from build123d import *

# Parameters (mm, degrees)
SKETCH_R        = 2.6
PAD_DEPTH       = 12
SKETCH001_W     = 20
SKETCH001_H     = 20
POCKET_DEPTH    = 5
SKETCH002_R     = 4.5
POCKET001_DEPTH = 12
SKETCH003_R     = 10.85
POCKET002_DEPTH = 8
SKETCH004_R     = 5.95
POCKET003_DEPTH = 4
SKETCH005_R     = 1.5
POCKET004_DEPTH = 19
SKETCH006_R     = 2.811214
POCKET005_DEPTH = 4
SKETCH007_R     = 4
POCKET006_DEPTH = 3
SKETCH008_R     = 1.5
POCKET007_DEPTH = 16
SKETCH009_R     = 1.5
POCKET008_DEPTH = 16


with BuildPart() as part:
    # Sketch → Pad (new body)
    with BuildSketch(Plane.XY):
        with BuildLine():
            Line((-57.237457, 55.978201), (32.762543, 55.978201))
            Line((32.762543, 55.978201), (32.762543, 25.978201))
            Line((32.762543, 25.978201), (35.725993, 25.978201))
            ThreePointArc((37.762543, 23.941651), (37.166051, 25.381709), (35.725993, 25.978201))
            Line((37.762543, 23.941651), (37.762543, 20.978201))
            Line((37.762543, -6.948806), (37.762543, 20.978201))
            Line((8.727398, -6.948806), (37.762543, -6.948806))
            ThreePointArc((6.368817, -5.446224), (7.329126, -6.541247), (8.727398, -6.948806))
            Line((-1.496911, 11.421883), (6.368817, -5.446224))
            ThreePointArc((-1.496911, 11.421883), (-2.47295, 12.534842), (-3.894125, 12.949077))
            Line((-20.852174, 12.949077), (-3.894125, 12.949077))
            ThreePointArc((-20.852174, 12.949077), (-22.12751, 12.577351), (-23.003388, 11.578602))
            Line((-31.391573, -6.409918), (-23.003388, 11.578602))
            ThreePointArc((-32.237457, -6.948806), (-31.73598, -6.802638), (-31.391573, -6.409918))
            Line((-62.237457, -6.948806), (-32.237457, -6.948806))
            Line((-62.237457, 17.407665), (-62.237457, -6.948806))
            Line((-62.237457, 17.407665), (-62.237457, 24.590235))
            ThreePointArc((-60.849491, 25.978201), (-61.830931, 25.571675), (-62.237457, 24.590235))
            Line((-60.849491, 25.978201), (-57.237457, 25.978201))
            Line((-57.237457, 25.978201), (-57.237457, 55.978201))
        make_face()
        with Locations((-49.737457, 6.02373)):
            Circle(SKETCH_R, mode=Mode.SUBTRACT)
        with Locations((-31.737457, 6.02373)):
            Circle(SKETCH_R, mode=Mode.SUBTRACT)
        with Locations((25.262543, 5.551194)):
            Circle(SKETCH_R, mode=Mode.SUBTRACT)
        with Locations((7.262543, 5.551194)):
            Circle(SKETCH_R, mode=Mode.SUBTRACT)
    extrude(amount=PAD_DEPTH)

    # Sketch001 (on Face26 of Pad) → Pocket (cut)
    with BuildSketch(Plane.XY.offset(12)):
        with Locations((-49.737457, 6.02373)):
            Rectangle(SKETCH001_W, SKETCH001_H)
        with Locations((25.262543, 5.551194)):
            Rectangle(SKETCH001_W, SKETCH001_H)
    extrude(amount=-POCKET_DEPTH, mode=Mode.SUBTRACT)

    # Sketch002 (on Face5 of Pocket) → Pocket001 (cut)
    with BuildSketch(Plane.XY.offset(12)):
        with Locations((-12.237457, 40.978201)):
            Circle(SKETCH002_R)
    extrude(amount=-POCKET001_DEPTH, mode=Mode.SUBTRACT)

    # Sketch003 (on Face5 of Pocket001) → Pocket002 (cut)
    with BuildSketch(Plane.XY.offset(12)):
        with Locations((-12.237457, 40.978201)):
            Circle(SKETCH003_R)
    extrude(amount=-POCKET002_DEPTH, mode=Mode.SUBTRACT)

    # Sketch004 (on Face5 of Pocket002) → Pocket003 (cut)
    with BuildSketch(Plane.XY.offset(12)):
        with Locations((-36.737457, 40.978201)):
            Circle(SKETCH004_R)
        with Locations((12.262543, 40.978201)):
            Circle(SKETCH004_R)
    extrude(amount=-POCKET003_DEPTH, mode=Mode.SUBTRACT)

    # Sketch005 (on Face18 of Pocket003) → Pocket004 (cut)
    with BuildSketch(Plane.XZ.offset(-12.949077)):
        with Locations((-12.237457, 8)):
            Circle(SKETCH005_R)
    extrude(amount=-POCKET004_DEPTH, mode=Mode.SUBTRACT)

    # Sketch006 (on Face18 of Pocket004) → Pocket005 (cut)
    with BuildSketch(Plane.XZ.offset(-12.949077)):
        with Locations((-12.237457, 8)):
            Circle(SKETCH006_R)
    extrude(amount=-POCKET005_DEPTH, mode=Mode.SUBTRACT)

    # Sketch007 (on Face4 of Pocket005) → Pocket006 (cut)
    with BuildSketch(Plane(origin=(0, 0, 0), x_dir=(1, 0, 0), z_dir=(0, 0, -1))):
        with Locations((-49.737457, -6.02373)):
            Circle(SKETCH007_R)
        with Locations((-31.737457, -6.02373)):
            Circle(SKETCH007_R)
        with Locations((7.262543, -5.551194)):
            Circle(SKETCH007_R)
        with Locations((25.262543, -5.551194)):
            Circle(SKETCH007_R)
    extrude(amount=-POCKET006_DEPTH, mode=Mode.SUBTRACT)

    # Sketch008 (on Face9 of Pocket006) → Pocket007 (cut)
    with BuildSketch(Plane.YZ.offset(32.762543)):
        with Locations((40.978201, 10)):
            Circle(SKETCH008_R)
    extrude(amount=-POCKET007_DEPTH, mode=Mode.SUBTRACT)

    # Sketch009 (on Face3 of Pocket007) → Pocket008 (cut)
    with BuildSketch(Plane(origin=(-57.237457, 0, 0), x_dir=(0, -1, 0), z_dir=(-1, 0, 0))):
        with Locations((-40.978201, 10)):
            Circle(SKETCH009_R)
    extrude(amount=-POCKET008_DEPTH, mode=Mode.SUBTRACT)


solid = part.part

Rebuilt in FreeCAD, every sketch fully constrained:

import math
import FreeCAD as App
import Part
import Sketcher

V = App.Vector
Q = App.Units.Quantity

doc = App.newDocument("Part")
body = doc.addObject("PartDesign::Body", "Body")

sketch1 = doc.addObject("Sketcher::SketchObject", "Sketch")
body.addObject(sketch1)
sketch1.AttachmentSupport = (doc.XY_Plane, [""])
sketch1.MapMode = "FlatFace"
sketch1.addGeometry(Part.LineSegment(V(32.8, 56, 0), V(-57.2, 56, 0)), False)
sketch1.addGeometry(Part.LineSegment(V(-57.2, 56, 0), V(-57.2, 26, 0)), False)
sketch1.addGeometry(Part.LineSegment(V(-57.2, 26, 0), V(-60.8, 26, 0)), False)
sketch1.addGeometry(Part.ArcOfCircle(Part.Circle(V(-60.8, 24.6, 0), V(0, 0, 1), 1.4), math.radians(90), math.radians(180)), False)
sketch1.addGeometry(Part.LineSegment(V(-62.2, 24.6, 0), V(-62.2, -6.9, 0)), False)
sketch1.addGeometry(Part.LineSegment(V(-62.2, -6.9, 0), V(-32.2, -6.9, 0)), False)
sketch1.addGeometry(Part.ArcOfCircle(Part.Circle(V(-32.2, -6, 0), V(0, 0, 1), 0.9), math.radians(-90), math.radians(-25)), False)
sketch1.addGeometry(Part.LineSegment(V(-31.4, -6.4, 0), V(-23, 11.6, 0)), False)
sketch1.addGeometry(Part.ArcOfCircle(Part.Circle(V(-20.9, 10.6, 0), V(0, 0, 1), 2.4), math.radians(90), math.radians(155)), False)
sketch1.addGeometry(Part.LineSegment(V(-20.9, 12.9, 0), V(-3.9, 12.9, 0)), False)
sketch1.addGeometry(Part.ArcOfCircle(Part.Circle(V(-3.9, 10.3, 0), V(0, 0, 1), 2.6), math.radians(25), math.radians(90)), False)
sketch1.addGeometry(Part.LineSegment(V(-1.5, 11.4, 0), V(6.4, -5.4, 0)), False)
sketch1.addGeometry(Part.ArcOfCircle(Part.Circle(V(8.7, -4.3, 0), V(0, 0, 1), 2.6), math.radians(-155), math.radians(-90)), False)
sketch1.addGeometry(Part.LineSegment(V(8.7, -6.9, 0), V(37.8, -6.9, 0)), False)
sketch1.addGeometry(Part.LineSegment(V(37.8, -6.9, 0), V(37.8, 23.9, 0)), False)
sketch1.addGeometry(Part.ArcOfCircle(Part.Circle(V(35.7, 23.9, 0), V(0, 0, 1), 2), math.radians(0), math.radians(90)), False)
sketch1.addGeometry(Part.LineSegment(V(35.7, 26, 0), V(32.8, 26, 0)), False)
sketch1.addGeometry(Part.LineSegment(V(32.8, 26, 0), V(32.8, 56, 0)), False)
sketch1.addGeometry(Part.Circle(V(25.3, 5.6, 0), V(0, 0, 1), 2.6), False)
sketch1.addGeometry(Part.Circle(V(7.3, 5.6, 0), V(0, 0, 1), 2.6), False)
sketch1.addGeometry(Part.Circle(V(-31.7, 6, 0), V(0, 0, 1), 2.6), False)
sketch1.addGeometry(Part.Circle(V(-49.7, 6, 0), V(0, 0, 1), 2.6), False)
sketch1.addConstraint(Sketcher.Constraint("Coincident", 0, 2, 1, 1))
sketch1.addConstraint(Sketcher.Constraint("Coincident", 1, 2, 2, 1))
sketch1.addConstraint(Sketcher.Constraint("Tangent", 2, 2, 3, 1))
sketch1.addConstraint(Sketcher.Constraint("Tangent", 3, 2, 4, 1))
sketch1.addConstraint(Sketcher.Constraint("Coincident", 4, 2, 5, 1))
sketch1.addConstraint(Sketcher.Constraint("Coincident", 5, 2, 6, 1))
sketch1.addConstraint(Sketcher.Constraint("Coincident", 6, 2, 7, 1))
sketch1.addConstraint(Sketcher.Constraint("Tangent", 7, 2, 8, 2))
sketch1.addConstraint(Sketcher.Constraint("Tangent", 8, 1, 9, 1))
sketch1.addConstraint(Sketcher.Constraint("Tangent", 9, 2, 10, 2))
sketch1.addConstraint(Sketcher.Constraint("Tangent", 10, 1, 11, 1))
sketch1.addConstraint(Sketcher.Constraint("Tangent", 11, 2, 12, 1))
sketch1.addConstraint(Sketcher.Constraint("Tangent", 12, 2, 13, 1))
sketch1.addConstraint(Sketcher.Constraint("Coincident", 13, 2, 14, 1))
sketch1.addConstraint(Sketcher.Constraint("Tangent", 14, 2, 15, 1))
sketch1.addConstraint(Sketcher.Constraint("Tangent", 15, 2, 16, 1))
sketch1.addConstraint(Sketcher.Constraint("Coincident", 16, 2, 17, 1))
sketch1.addConstraint(Sketcher.Constraint("Coincident", 17, 2, 0, 1))
sketch1.addConstraint(Sketcher.Constraint("Horizontal", 0))
sketch1.addConstraint(Sketcher.Constraint("Vertical", 1))
sketch1.addConstraint(Sketcher.Constraint("Horizontal", 2))
sketch1.addConstraint(Sketcher.Constraint("Vertical", 4))
sketch1.addConstraint(Sketcher.Constraint("Horizontal", 5))
sketch1.addConstraint(Sketcher.Constraint("Horizontal", 9))
sketch1.addConstraint(Sketcher.Constraint("Horizontal", 13))
sketch1.addConstraint(Sketcher.Constraint("Vertical", 14))
sketch1.addConstraint(Sketcher.Constraint("Horizontal", 16))
sketch1.addConstraint(Sketcher.Constraint("Vertical", 17))
sketch1.addConstraint(Sketcher.Constraint("Equal", 18, 19))
sketch1.addConstraint(Sketcher.Constraint("Equal", 19, 20))
sketch1.addConstraint(Sketcher.Constraint("Equal", 20, 21))
sketch1.addConstraint(Sketcher.Constraint("Horizontal", 18, 3, 19, 3))
sketch1.addConstraint(Sketcher.Constraint("Horizontal", 20, 3, 21, 3))
sketch1.addConstraint(Sketcher.Constraint("Horizontal", 5, 2, 12, 2))
sketch1.addConstraint(Sketcher.Constraint("Horizontal", 2, 2, 15, 2))
sketch1.addConstraint(Sketcher.Constraint("Equal", 5, 1))
sketch1.addConstraint(Sketcher.Constraint("Diameter", 18, Q("5.2 mm")))
sketch1.addConstraint(Sketcher.Constraint("DistanceX", 0, 2, 0, 1, Q("90 mm")))
sketch1.addConstraint(Sketcher.Constraint("DistanceX", 5, 1, 5, 2, Q("30 mm")))
sketch1.addConstraint(Sketcher.Constraint("Angle", 7, Q("64.999999 deg")))
sketch1.addConstraint(Sketcher.Constraint("Angle", 11, Q("-64.999999 deg")))
sketch1.addConstraint(Sketcher.Constraint("DistanceX", 19, 3, 18, 3, Q("18 mm")))
sketch1.addConstraint(Sketcher.Constraint("DistanceX", 20, 3, 19, 3, Q("39 mm")))
sketch1.addConstraint(Sketcher.Constraint("DistanceX", 21, 3, 20, 3, Q("18 mm")))
sketch1.addConstraint(Sketcher.Constraint("DistanceX", 3, 2, 1, 2, Q("5 mm")))
sketch1.addConstraint(Sketcher.Constraint("DistanceX", 16, 2, 14, 2, Q("5 mm")))
sketch1.addConstraint(Sketcher.Constraint("DistanceX", 0, 2, 21, 3, Q("7.5 mm")))
sketch1.addConstraint(Sketcher.Constraint("DistanceY", 12, 2, 19, 3, Q("12.5 mm")))
sketch1.addConstraint(Sketcher.Constraint("Radius", 15, Q("2.036551 mm")))
sketch1.addConstraint(Sketcher.Constraint("Radius", 3, Q("1.387967 mm")))
sketch1.addConstraint(Sketcher.Constraint("Radius", 6, Q("0.933334 mm")))
sketch1.addConstraint(Sketcher.Constraint("Radius", 8, Q("2.373598 mm")))
sketch1.addConstraint(Sketcher.Constraint("Radius", 10, Q("2.645034 mm")))
sketch1.addConstraint(Sketcher.Constraint("Radius", 12, Q("2.602405 mm")))
sketch1.addConstraint(Sketcher.Constraint("DistanceX", 9, 1, 9, 2, Q("16.958049 mm")))
sketch1.addConstraint(Sketcher.Constraint("DistanceY", 4, 2, 4, 1, Q("31.539041 mm")))
sketch1.addConstraint(Sketcher.Constraint("DistanceY", 12, 3, -1, 1, Q("4.346401 mm")))
sketch1.addConstraint(Sketcher.Constraint("DistanceX", -1, 1, 12, 2, Q("8.727398 mm")))
sketch1.addConstraint(Sketcher.Constraint("DistanceX", 6, 2, 8, 1, Q("10.539399 mm")))
sketch1.addConstraint(Sketcher.Constraint("DistanceY", 11, 2, 9, 2, Q("18.395301 mm")))
sketch1.addConstraint(Sketcher.Constraint("DistanceX", 13, 1, 13, 2, Q("29.035145 mm")))
sketch1.addConstraint(Sketcher.Constraint("DistanceY", -1, 1, 20, 3, Q("6.02373 mm")))
pad1 = doc.addObject("PartDesign::Pad", "Pad")
body.addObject(pad1)
pad1.Profile = sketch1
pad1.Length = 12

sketch2 = doc.addObject("Sketcher::SketchObject", "Sketch001")
body.addObject(sketch2)
sketch2.AttachmentSupport = (doc.XY_Plane, [""])
sketch2.MapMode = "FlatFace"
sketch2.AttachmentOffset = App.Placement(V(0, 0, 12), App.Rotation())
sketch2.addGeometry(Part.LineSegment(V(-60, 16, 0), V(-60, -4, 0)), False)
sketch2.addGeometry(Part.LineSegment(V(-60, -4, 0), V(-40, -4, 0)), False)
sketch2.addGeometry(Part.LineSegment(V(-40, -4, 0), V(-40, 16, 0)), False)
sketch2.addGeometry(Part.LineSegment(V(-40, 16, 0), V(-60, 16, 0)), False)
sketch2.addGeometry(Part.LineSegment(V(15, 16, 0), V(15, -4, 0)), False)
sketch2.addGeometry(Part.LineSegment(V(15, -4, 0), V(35, -4, 0)), False)
sketch2.addGeometry(Part.LineSegment(V(35, -4, 0), V(35, 16, 0)), False)
sketch2.addGeometry(Part.LineSegment(V(35, 16, 0), V(15, 16, 0)), False)
sketch2.addConstraint(Sketcher.Constraint("Coincident", 0, 2, 1, 1))
sketch2.addConstraint(Sketcher.Constraint("Coincident", 1, 2, 2, 1))
sketch2.addConstraint(Sketcher.Constraint("Coincident", 2, 2, 3, 1))
sketch2.addConstraint(Sketcher.Constraint("Coincident", 3, 2, 0, 1))
sketch2.addConstraint(Sketcher.Constraint("Coincident", 4, 2, 5, 1))
sketch2.addConstraint(Sketcher.Constraint("Coincident", 5, 2, 6, 1))
sketch2.addConstraint(Sketcher.Constraint("Coincident", 6, 2, 7, 1))
sketch2.addConstraint(Sketcher.Constraint("Coincident", 7, 2, 4, 1))
sketch2.addConstraint(Sketcher.Constraint("Vertical", 0))
sketch2.addConstraint(Sketcher.Constraint("Horizontal", 1))
sketch2.addConstraint(Sketcher.Constraint("Vertical", 2))
sketch2.addConstraint(Sketcher.Constraint("Horizontal", 3))
sketch2.addConstraint(Sketcher.Constraint("Vertical", 4))
sketch2.addConstraint(Sketcher.Constraint("Horizontal", 5))
sketch2.addConstraint(Sketcher.Constraint("Vertical", 6))
sketch2.addConstraint(Sketcher.Constraint("Horizontal", 7))
sketch2.addConstraint(Sketcher.Constraint("Equal", 3, 5))
sketch2.addConstraint(Sketcher.Constraint("Equal", 7, 0))
sketch2.addConstraint(Sketcher.Constraint("Equal", 2, 4))
sketch2.addConstraint(Sketcher.Constraint("DistanceX", 1, 1, 1, 2, Q("20 mm")))
sketch2.addConstraint(Sketcher.Constraint("DistanceX", 1, 2, 4, 2, Q("55 mm")))
sketch2.addConstraint(Sketcher.Constraint("DistanceY", 0, 2, -1, 1, Q("3.97627 mm")))
sketch2.addConstraint(Sketcher.Constraint("DistanceX", 0, 2, -1, 1, Q("59.737457 mm")))
sketch2.addConstraint(Sketcher.Constraint("DistanceY", 4, 2, -1, 1, Q("4.448806 mm")))
pocket1 = doc.addObject("PartDesign::Pocket", "Pocket")
body.addObject(pocket1)
pocket1.Profile = sketch2
pocket1.Length = 5

sketch3 = doc.addObject("Sketcher::SketchObject", "Sketch002")
body.addObject(sketch3)
sketch3.AttachmentSupport = (doc.XY_Plane, [""])
sketch3.MapMode = "FlatFace"
sketch3.AttachmentOffset = App.Placement(V(0, 0, 12), App.Rotation())
sketch3.addGeometry(Part.Circle(V(-12.2, 41, 0), V(0, 0, 1), 4.5), False)
sketch3.addConstraint(Sketcher.Constraint("Diameter", 0, Q("9 mm")))
sketch3.addConstraint(Sketcher.Constraint("DistanceY", -1, 1, 0, 3, Q("40.978201 mm")))
sketch3.addConstraint(Sketcher.Constraint("DistanceX", 0, 3, -1, 1, Q("12.237457 mm")))
pocket2 = doc.addObject("PartDesign::Pocket", "Pocket001")
body.addObject(pocket2)
pocket2.Profile = sketch3
pocket2.Length = 12

sketch4 = doc.addObject("Sketcher::SketchObject", "Sketch003")
body.addObject(sketch4)
sketch4.AttachmentSupport = (doc.XY_Plane, [""])
sketch4.MapMode = "FlatFace"
sketch4.AttachmentOffset = App.Placement(V(0, 0, 12), App.Rotation())
sketch4.addGeometry(Part.Circle(V(-12, 41, 0), V(0, 0, 1), 11), False)
sketch4.addConstraint(Sketcher.Constraint("Diameter", 0, Q("21.7 mm")))
sketch4.addConstraint(Sketcher.Constraint("DistanceY", -1, 1, 0, 3, Q("40.978201 mm")))
sketch4.addConstraint(Sketcher.Constraint("DistanceX", 0, 3, -1, 1, Q("12.237457 mm")))
pocket3 = doc.addObject("PartDesign::Pocket", "Pocket002")
body.addObject(pocket3)
pocket3.Profile = sketch4
pocket3.Length = 8

sketch5 = doc.addObject("Sketcher::SketchObject", "Sketch004")
body.addObject(sketch5)
sketch5.AttachmentSupport = (doc.XY_Plane, [""])
sketch5.MapMode = "FlatFace"
sketch5.AttachmentOffset = App.Placement(V(0, 0, 12), App.Rotation())
sketch5.addGeometry(Part.Circle(V(-37, 41, 0), V(0, 0, 1), 6), False)
sketch5.addGeometry(Part.Circle(V(12, 41, 0), V(0, 0, 1), 6), False)
sketch5.addConstraint(Sketcher.Constraint("Equal", 0, 1))
sketch5.addConstraint(Sketcher.Constraint("Horizontal", 0, 3, 1, 3))
sketch5.addConstraint(Sketcher.Constraint("Diameter", 0, Q("11.9 mm")))
sketch5.addConstraint(Sketcher.Constraint("DistanceX", 0, 3, 1, 3, Q("49 mm")))
sketch5.addConstraint(Sketcher.Constraint("DistanceY", -1, 1, 0, 3, Q("40.978201 mm")))
sketch5.addConstraint(Sketcher.Constraint("DistanceX", 0, 3, -1, 1, Q("36.737457 mm")))
pocket4 = doc.addObject("PartDesign::Pocket", "Pocket003")
body.addObject(pocket4)
pocket4.Profile = sketch5
pocket4.Length = 4

sketch6 = doc.addObject("Sketcher::SketchObject", "Sketch005")
body.addObject(sketch6)
sketch6.AttachmentSupport = (doc.XZ_Plane, [""])
sketch6.MapMode = "FlatFace"
sketch6.AttachmentOffset = App.Placement(V(0, 0, -12.949077), App.Rotation())
sketch6.addGeometry(Part.Circle(V(-12.2, 8, 0), V(0, 0, 1), 1.5), False)
sketch6.addConstraint(Sketcher.Constraint("Diameter", 0, Q("3 mm")))
sketch6.addConstraint(Sketcher.Constraint("DistanceY", -1, 1, 0, 3, Q("8 mm")))
sketch6.addConstraint(Sketcher.Constraint("DistanceX", 0, 3, -1, 1, Q("12.237457 mm")))
pocket5 = doc.addObject("PartDesign::Pocket", "Pocket004")
body.addObject(pocket5)
pocket5.Profile = sketch6
pocket5.Length = 19

sketch7 = doc.addObject("Sketcher::SketchObject", "Sketch006")
body.addObject(sketch7)
sketch7.AttachmentSupport = (doc.XZ_Plane, [""])
sketch7.MapMode = "FlatFace"
sketch7.AttachmentOffset = App.Placement(V(0, 0, -12.949077), App.Rotation())
sketch7.addGeometry(Part.Circle(V(-12.2, 8, 0), V(0, 0, 1), 2.8), False)
sketch7.addConstraint(Sketcher.Constraint("DistanceY", -1, 1, 0, 3, Q("8 mm")))
sketch7.addConstraint(Sketcher.Constraint("Diameter", 0, Q("5.622428 mm")))
sketch7.addConstraint(Sketcher.Constraint("DistanceX", 0, 3, -1, 1, Q("12.237457 mm")))
pocket6 = doc.addObject("PartDesign::Pocket", "Pocket005")
body.addObject(pocket6)
pocket6.Profile = sketch7
pocket6.Length = 4

sketch8 = doc.addObject("Sketcher::SketchObject", "Sketch007")
body.addObject(sketch8)
sketch8.AttachmentSupport = (doc.XY_Plane, [""])
sketch8.MapMode = "FlatFace"
sketch8.addGeometry(Part.Circle(V(-49.7, 6, 0), V(0, 0, 1), 4), False)
sketch8.addGeometry(Part.Circle(V(-31.7, 6, 0), V(0, 0, 1), 4), False)
sketch8.addGeometry(Part.Circle(V(7.3, 5.6, 0), V(0, 0, 1), 4), False)
sketch8.addGeometry(Part.Circle(V(25.3, 5.6, 0), V(0, 0, 1), 4), False)
sketch8.addConstraint(Sketcher.Constraint("Equal", 0, 1))
sketch8.addConstraint(Sketcher.Constraint("Equal", 1, 2))
sketch8.addConstraint(Sketcher.Constraint("Equal", 2, 3))
sketch8.addConstraint(Sketcher.Constraint("Horizontal", 0, 3, 1, 3))
sketch8.addConstraint(Sketcher.Constraint("Horizontal", 2, 3, 3, 3))
sketch8.addConstraint(Sketcher.Constraint("Diameter", 0, Q("8 mm")))
sketch8.addConstraint(Sketcher.Constraint("DistanceX", 0, 3, 1, 3, Q("18 mm")))
sketch8.addConstraint(Sketcher.Constraint("DistanceX", 1, 3, 2, 3, Q("39 mm")))
sketch8.addConstraint(Sketcher.Constraint("DistanceX", 2, 3, 3, 3, Q("18 mm")))
sketch8.addConstraint(Sketcher.Constraint("DistanceY", -1, 1, 0, 3, Q("6.02373 mm")))
sketch8.addConstraint(Sketcher.Constraint("DistanceX", 0, 3, -1, 1, Q("49.737457 mm")))
sketch8.addConstraint(Sketcher.Constraint("DistanceY", -1, 1, 2, 3, Q("5.551194 mm")))
pocket7 = doc.addObject("PartDesign::Pocket", "Pocket006")
body.addObject(pocket7)
pocket7.Profile = sketch8
pocket7.Length = 3
pocket7.Reversed = True

sketch9 = doc.addObject("Sketcher::SketchObject", "Sketch008")
body.addObject(sketch9)
sketch9.AttachmentSupport = (doc.YZ_Plane, [""])
sketch9.MapMode = "FlatFace"
sketch9.AttachmentOffset = App.Placement(V(0, 0, 32.762543), App.Rotation())
sketch9.addGeometry(Part.Circle(V(41, 10, 0), V(0, 0, 1), 1.5), False)
sketch9.addConstraint(Sketcher.Constraint("Diameter", 0, Q("3 mm")))
sketch9.addConstraint(Sketcher.Constraint("DistanceY", -1, 1, 0, 3, Q("10 mm")))
sketch9.addConstraint(Sketcher.Constraint("DistanceX", -1, 1, 0, 3, Q("40.978201 mm")))
pocket8 = doc.addObject("PartDesign::Pocket", "Pocket007")
body.addObject(pocket8)
pocket8.Profile = sketch9
pocket8.Length = 16

sketch10 = doc.addObject("Sketcher::SketchObject", "Sketch009")
body.addObject(sketch10)
sketch10.AttachmentSupport = (doc.YZ_Plane, [""])
sketch10.MapMode = "FlatFace"
sketch10.AttachmentOffset = App.Placement(V(0, 0, -57.237457), App.Rotation())
sketch10.addGeometry(Part.Circle(V(41, 10, 0), V(0, 0, 1), 1.5), False)
sketch10.addConstraint(Sketcher.Constraint("Diameter", 0, Q("3 mm")))
sketch10.addConstraint(Sketcher.Constraint("DistanceY", -1, 1, 0, 3, Q("10 mm")))
sketch10.addConstraint(Sketcher.Constraint("DistanceX", -1, 1, 0, 3, Q("40.978201 mm")))
pocket9 = doc.addObject("PartDesign::Pocket", "Pocket008")
body.addObject(pocket9)
pocket9.Profile = sketch10
pocket9.Length = 16
pocket9.Reversed = True

doc.recompute()
